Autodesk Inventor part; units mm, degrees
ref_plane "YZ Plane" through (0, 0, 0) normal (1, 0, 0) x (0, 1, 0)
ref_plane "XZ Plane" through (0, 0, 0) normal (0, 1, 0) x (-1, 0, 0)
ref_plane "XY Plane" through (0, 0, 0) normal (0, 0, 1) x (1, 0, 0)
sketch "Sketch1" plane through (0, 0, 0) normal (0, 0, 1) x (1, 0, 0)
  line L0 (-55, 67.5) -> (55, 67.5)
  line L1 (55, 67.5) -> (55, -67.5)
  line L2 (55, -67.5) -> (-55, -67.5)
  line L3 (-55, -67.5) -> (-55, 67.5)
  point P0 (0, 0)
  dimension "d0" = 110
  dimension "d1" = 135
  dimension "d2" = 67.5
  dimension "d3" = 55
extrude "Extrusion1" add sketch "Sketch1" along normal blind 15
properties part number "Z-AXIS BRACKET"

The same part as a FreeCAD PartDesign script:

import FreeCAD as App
import Part
import Sketcher

V = App.Vector


def add_polygon(sketch, points):
    """Adds a closed chain of lines whose ends are joined by coincident constraints."""
    first, n = sketch.GeometryCount, len(points)
    for a, b in zip(points, points[1:] + points[:1]):
        sketch.addGeometry(Part.LineSegment(App.Vector(*a, 0), App.Vector(*b, 0)), False)
    for i in range(n):
        sketch.addConstraint(Sketcher.Constraint("Coincident", first + i, 2, first + (i + 1) % n, 1))

doc = App.newDocument("Part")
body = doc.addObject("PartDesign::Body", "Body")

sketch1 = doc.addObject("Sketcher::SketchObject", "Sketch")
body.addObject(sketch1)
sketch1.AttachmentSupport = (doc.XY_Plane, [""])
sketch1.MapMode = "FlatFace"
add_polygon(sketch1, [(55, 68), (-55, 68), (-55, -68), (55, -68)])
sketch1.addConstraint([
    Sketcher.Constraint("Horizontal", 0),
    Sketcher.Constraint("Vertical", 1),
    Sketcher.Constraint("Horizontal", 2),
    Sketcher.Constraint("Vertical", 3),
    Sketcher.Constraint("Symmetric", 0, 2, 2, 2, -1, 1),
    Sketcher.Constraint("DistanceX", 0, 2, 0, 1, 110.0),
    Sketcher.Constraint("DistanceY", 1, 2, 1, 1, 135.0),
])
pad1 = doc.addObject("PartDesign::Pad", "Pad")
body.addObject(pad1)
pad1.Profile = sketch1
pad1.Length = 15

doc.recompute()
